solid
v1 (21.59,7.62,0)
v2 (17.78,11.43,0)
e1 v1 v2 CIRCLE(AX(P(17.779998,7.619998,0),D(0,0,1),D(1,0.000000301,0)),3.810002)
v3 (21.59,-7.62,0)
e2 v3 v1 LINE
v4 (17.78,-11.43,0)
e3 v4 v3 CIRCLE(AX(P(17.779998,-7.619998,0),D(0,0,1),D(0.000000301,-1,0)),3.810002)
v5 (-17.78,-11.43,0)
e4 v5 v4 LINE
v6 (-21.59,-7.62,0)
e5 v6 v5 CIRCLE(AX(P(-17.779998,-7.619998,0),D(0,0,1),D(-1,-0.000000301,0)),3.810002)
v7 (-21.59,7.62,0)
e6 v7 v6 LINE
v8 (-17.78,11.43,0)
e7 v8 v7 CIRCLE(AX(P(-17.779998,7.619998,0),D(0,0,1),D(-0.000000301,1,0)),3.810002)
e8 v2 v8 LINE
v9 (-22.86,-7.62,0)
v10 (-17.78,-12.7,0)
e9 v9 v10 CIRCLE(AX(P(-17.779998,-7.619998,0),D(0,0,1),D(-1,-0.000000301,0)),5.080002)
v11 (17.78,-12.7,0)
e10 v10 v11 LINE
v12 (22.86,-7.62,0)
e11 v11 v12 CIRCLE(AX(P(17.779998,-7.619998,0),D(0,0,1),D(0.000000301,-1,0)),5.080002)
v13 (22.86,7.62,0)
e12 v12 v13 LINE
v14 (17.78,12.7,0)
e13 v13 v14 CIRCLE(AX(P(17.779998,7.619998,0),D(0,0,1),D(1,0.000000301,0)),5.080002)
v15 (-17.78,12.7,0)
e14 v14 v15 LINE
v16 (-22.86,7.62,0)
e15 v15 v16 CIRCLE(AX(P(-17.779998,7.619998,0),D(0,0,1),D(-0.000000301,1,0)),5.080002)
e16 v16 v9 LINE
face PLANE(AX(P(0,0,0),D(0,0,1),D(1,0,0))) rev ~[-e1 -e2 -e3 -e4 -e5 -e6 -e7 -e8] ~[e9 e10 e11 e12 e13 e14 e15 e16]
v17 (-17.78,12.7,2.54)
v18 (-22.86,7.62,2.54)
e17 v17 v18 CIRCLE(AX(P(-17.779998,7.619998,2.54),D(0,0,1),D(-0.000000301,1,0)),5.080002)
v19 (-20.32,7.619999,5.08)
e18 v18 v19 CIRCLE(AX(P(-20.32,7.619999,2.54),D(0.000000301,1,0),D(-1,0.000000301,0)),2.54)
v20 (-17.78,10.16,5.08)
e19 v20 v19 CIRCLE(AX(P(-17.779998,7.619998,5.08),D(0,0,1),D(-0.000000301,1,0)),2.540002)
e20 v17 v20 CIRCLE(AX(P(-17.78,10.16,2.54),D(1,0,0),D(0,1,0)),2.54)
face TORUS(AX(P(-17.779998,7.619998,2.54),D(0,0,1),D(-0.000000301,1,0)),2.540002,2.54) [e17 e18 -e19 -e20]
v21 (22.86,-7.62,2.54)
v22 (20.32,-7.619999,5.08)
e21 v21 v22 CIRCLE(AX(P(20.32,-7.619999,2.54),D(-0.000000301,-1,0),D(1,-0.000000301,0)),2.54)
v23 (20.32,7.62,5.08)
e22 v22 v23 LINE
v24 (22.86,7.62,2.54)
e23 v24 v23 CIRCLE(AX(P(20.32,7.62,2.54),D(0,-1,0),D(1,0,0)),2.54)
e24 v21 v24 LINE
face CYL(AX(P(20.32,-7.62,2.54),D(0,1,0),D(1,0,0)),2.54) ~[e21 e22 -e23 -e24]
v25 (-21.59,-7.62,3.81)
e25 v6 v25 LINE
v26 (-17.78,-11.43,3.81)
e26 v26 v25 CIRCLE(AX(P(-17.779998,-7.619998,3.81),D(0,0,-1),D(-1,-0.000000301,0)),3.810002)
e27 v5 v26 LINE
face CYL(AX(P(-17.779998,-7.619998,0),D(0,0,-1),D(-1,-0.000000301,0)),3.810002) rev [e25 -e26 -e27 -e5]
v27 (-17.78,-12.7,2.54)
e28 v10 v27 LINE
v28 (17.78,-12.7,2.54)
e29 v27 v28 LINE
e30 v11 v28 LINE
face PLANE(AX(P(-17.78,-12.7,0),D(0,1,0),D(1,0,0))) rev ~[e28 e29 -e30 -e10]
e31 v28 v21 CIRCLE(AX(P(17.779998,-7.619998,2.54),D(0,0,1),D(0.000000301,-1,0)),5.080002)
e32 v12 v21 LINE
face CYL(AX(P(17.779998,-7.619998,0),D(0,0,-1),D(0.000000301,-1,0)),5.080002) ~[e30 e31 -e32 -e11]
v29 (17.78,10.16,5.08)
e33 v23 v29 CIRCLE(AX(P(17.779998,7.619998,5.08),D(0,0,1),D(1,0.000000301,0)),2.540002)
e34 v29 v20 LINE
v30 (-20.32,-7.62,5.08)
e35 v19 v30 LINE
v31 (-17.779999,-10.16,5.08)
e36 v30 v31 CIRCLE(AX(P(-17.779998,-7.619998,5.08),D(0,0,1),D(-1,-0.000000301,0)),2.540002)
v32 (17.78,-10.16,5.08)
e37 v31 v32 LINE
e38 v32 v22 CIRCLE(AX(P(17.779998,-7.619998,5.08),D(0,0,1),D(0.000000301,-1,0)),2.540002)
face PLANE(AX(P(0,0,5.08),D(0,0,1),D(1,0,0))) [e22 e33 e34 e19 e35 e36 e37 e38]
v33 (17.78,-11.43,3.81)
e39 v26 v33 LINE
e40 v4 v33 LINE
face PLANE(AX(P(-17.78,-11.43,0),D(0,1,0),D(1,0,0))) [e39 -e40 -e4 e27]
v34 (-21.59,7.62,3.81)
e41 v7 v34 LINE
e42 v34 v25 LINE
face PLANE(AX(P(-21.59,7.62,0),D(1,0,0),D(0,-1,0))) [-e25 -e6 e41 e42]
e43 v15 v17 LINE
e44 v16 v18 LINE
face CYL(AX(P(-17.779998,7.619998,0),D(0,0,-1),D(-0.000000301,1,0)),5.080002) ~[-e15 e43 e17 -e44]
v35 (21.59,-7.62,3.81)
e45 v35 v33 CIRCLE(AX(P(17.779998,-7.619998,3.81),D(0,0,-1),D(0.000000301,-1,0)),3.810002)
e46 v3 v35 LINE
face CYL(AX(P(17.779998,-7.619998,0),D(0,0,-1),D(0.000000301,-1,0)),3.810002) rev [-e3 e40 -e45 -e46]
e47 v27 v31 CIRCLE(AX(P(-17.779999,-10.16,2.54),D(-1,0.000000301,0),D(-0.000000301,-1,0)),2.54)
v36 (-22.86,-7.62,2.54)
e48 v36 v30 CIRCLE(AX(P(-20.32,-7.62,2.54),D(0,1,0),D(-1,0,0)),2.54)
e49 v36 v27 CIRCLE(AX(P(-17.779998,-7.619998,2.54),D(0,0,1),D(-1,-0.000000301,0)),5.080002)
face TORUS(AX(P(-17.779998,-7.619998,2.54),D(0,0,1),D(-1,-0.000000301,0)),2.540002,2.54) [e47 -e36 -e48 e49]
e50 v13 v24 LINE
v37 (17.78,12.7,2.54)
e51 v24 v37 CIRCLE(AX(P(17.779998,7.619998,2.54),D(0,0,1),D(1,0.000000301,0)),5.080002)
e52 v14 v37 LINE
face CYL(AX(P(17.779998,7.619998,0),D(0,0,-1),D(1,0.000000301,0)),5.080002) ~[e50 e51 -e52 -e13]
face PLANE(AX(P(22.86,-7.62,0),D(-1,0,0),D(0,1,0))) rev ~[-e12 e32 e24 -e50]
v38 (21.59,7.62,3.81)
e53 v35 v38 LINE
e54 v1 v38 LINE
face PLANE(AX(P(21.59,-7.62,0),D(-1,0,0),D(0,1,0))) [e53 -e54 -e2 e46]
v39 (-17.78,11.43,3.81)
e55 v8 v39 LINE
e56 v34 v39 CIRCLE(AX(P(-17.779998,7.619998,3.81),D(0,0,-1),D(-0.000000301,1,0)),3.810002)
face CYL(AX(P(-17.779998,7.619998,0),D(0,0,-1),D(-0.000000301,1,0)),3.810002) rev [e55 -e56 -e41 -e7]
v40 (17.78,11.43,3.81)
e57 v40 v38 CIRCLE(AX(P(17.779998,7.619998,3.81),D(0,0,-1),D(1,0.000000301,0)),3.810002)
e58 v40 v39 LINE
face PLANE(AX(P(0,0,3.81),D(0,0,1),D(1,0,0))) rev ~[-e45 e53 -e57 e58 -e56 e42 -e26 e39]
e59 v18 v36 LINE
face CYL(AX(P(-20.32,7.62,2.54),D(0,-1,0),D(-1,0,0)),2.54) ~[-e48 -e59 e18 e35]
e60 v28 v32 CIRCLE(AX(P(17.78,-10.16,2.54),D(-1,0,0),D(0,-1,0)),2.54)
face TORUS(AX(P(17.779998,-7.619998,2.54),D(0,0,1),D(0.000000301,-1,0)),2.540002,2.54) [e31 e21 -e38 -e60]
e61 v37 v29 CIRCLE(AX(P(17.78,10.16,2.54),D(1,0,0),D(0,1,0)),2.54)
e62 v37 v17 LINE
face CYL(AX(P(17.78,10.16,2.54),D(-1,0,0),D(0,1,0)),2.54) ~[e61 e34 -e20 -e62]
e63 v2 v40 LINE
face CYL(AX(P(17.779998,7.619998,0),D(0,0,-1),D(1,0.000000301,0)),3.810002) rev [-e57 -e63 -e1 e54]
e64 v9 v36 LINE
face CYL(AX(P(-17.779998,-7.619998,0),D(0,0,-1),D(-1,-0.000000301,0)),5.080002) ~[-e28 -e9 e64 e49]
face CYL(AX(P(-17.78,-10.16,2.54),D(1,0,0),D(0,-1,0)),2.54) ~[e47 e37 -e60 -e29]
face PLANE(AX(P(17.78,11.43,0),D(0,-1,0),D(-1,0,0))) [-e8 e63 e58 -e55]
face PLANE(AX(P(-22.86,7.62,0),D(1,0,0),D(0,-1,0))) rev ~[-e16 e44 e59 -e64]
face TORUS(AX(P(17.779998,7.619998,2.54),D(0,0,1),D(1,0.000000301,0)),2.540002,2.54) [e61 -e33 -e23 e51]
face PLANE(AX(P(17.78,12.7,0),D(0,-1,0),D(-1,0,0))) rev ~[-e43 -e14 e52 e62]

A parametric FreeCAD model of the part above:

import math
import FreeCAD as App
import Part
import Sketcher

V = App.Vector
Q = App.Units.Quantity


def edges_at(feature, points):
    """Names of the edges that pass closest to the given points."""
    edges = feature.Shape.Edges
    near = lambda p: min(range(len(edges)), key=lambda i: edges[i].distToShape(Part.Vertex(*p))[0])
    return sorted({f"Edge{near(p) + 1}" for p in points})


def faces_at(feature, points):
    """Names of the faces that lie closest to the given points."""
    faces = feature.Shape.Faces
    near = lambda p: min(range(len(faces)), key=lambda i: faces[i].distToShape(Part.Vertex(*p))[0])
    return sorted({f"Face{near(p) + 1}" for p in points})

doc = App.newDocument("Part")
body = doc.addObject("PartDesign::Body", "Body")

sketch1 = body.newObject("Sketcher::SketchObject", "Sketch")
sketch1.AttachmentSupport = (doc.getObject("XY_Plane"), [""])
sketch1.MapMode = "FlatFace"
sketch1.addGeometry([
    Part.ArcOfCircle(Part.Circle(V(18, 8, 0), V(0, 0, 1), 5), math.radians(0), math.radians(90)),
    Part.LineSegment(V(18, 13, 0), V(-18, 13, 0)),
    Part.ArcOfCircle(Part.Circle(V(-18, 8, 0), V(0, 0, 1), 5), math.radians(90), math.radians(180)),
    Part.LineSegment(V(-23, 8, 0), V(-23, -8, 0)),
    Part.ArcOfCircle(Part.Circle(V(-18, -8, 0), V(0, 0, 1), 5), math.radians(-180), math.radians(-90)),
    Part.LineSegment(V(-18, -13, 0), V(18, -13, 0)),
    Part.ArcOfCircle(Part.Circle(V(18, -8, 0), V(0, 0, 1), 5), math.radians(-90), math.radians(0)),
    Part.LineSegment(V(23, -8, 0), V(23, 8, 0)),
], False)
sketch1.addConstraint([
    Sketcher.Constraint("Tangent", 0, 2, 1, 1),
    Sketcher.Constraint("Tangent", 1, 2, 2, 1),
    Sketcher.Constraint("Tangent", 2, 2, 3, 1),
    Sketcher.Constraint("Tangent", 3, 2, 4, 1),
    Sketcher.Constraint("Tangent", 4, 2, 5, 1),
    Sketcher.Constraint("Tangent", 5, 2, 6, 1),
    Sketcher.Constraint("Tangent", 6, 2, 7, 1),
    Sketcher.Constraint("Tangent", 7, 2, 0, 1),
    Sketcher.Constraint("Horizontal", 1),
    Sketcher.Constraint("Vertical", 3),
    Sketcher.Constraint("Horizontal", 5),
    Sketcher.Constraint("Vertical", 7),
    Sketcher.Constraint("Equal", 0, 2),
    Sketcher.Constraint("Equal", 2, 4),
    Sketcher.Constraint("Equal", 4, 6),
    Sketcher.Constraint("Symmetric", 0, 3, 4, 3, -1, 1),
    Sketcher.Constraint("Radius", 0, Q("0.2000001 in")),
    Sketcher.Constraint("DistanceX", 1, 2, 1, 1, Q("1.4 in")),
    Sketcher.Constraint("DistanceY", 3, 2, 3, 1, Q("0.6 in")),
])
pad1 = body.newObject("PartDesign::Pad", "Pad")
pad1.Profile = sketch1
pad1.Length = Q("0.2 in")
doc.recompute()

thickness = body.newObject("PartDesign::Thickness", "Thickness")
thickness.Base = (pad1, faces_at(pad1, [(0, 0, 0)]))
thickness.Value = Q("0.05 in")
thickness.Reversed = True
thickness.Join = "Arc"
doc.recompute()

fillet = body.newObject("PartDesign::Fillet", "Fillet")
fillet.Base = (thickness, edges_at(thickness, [(0, 12.7, 5.08)]))
fillet.Radius = Q("0.1 in")

doc.recompute()
